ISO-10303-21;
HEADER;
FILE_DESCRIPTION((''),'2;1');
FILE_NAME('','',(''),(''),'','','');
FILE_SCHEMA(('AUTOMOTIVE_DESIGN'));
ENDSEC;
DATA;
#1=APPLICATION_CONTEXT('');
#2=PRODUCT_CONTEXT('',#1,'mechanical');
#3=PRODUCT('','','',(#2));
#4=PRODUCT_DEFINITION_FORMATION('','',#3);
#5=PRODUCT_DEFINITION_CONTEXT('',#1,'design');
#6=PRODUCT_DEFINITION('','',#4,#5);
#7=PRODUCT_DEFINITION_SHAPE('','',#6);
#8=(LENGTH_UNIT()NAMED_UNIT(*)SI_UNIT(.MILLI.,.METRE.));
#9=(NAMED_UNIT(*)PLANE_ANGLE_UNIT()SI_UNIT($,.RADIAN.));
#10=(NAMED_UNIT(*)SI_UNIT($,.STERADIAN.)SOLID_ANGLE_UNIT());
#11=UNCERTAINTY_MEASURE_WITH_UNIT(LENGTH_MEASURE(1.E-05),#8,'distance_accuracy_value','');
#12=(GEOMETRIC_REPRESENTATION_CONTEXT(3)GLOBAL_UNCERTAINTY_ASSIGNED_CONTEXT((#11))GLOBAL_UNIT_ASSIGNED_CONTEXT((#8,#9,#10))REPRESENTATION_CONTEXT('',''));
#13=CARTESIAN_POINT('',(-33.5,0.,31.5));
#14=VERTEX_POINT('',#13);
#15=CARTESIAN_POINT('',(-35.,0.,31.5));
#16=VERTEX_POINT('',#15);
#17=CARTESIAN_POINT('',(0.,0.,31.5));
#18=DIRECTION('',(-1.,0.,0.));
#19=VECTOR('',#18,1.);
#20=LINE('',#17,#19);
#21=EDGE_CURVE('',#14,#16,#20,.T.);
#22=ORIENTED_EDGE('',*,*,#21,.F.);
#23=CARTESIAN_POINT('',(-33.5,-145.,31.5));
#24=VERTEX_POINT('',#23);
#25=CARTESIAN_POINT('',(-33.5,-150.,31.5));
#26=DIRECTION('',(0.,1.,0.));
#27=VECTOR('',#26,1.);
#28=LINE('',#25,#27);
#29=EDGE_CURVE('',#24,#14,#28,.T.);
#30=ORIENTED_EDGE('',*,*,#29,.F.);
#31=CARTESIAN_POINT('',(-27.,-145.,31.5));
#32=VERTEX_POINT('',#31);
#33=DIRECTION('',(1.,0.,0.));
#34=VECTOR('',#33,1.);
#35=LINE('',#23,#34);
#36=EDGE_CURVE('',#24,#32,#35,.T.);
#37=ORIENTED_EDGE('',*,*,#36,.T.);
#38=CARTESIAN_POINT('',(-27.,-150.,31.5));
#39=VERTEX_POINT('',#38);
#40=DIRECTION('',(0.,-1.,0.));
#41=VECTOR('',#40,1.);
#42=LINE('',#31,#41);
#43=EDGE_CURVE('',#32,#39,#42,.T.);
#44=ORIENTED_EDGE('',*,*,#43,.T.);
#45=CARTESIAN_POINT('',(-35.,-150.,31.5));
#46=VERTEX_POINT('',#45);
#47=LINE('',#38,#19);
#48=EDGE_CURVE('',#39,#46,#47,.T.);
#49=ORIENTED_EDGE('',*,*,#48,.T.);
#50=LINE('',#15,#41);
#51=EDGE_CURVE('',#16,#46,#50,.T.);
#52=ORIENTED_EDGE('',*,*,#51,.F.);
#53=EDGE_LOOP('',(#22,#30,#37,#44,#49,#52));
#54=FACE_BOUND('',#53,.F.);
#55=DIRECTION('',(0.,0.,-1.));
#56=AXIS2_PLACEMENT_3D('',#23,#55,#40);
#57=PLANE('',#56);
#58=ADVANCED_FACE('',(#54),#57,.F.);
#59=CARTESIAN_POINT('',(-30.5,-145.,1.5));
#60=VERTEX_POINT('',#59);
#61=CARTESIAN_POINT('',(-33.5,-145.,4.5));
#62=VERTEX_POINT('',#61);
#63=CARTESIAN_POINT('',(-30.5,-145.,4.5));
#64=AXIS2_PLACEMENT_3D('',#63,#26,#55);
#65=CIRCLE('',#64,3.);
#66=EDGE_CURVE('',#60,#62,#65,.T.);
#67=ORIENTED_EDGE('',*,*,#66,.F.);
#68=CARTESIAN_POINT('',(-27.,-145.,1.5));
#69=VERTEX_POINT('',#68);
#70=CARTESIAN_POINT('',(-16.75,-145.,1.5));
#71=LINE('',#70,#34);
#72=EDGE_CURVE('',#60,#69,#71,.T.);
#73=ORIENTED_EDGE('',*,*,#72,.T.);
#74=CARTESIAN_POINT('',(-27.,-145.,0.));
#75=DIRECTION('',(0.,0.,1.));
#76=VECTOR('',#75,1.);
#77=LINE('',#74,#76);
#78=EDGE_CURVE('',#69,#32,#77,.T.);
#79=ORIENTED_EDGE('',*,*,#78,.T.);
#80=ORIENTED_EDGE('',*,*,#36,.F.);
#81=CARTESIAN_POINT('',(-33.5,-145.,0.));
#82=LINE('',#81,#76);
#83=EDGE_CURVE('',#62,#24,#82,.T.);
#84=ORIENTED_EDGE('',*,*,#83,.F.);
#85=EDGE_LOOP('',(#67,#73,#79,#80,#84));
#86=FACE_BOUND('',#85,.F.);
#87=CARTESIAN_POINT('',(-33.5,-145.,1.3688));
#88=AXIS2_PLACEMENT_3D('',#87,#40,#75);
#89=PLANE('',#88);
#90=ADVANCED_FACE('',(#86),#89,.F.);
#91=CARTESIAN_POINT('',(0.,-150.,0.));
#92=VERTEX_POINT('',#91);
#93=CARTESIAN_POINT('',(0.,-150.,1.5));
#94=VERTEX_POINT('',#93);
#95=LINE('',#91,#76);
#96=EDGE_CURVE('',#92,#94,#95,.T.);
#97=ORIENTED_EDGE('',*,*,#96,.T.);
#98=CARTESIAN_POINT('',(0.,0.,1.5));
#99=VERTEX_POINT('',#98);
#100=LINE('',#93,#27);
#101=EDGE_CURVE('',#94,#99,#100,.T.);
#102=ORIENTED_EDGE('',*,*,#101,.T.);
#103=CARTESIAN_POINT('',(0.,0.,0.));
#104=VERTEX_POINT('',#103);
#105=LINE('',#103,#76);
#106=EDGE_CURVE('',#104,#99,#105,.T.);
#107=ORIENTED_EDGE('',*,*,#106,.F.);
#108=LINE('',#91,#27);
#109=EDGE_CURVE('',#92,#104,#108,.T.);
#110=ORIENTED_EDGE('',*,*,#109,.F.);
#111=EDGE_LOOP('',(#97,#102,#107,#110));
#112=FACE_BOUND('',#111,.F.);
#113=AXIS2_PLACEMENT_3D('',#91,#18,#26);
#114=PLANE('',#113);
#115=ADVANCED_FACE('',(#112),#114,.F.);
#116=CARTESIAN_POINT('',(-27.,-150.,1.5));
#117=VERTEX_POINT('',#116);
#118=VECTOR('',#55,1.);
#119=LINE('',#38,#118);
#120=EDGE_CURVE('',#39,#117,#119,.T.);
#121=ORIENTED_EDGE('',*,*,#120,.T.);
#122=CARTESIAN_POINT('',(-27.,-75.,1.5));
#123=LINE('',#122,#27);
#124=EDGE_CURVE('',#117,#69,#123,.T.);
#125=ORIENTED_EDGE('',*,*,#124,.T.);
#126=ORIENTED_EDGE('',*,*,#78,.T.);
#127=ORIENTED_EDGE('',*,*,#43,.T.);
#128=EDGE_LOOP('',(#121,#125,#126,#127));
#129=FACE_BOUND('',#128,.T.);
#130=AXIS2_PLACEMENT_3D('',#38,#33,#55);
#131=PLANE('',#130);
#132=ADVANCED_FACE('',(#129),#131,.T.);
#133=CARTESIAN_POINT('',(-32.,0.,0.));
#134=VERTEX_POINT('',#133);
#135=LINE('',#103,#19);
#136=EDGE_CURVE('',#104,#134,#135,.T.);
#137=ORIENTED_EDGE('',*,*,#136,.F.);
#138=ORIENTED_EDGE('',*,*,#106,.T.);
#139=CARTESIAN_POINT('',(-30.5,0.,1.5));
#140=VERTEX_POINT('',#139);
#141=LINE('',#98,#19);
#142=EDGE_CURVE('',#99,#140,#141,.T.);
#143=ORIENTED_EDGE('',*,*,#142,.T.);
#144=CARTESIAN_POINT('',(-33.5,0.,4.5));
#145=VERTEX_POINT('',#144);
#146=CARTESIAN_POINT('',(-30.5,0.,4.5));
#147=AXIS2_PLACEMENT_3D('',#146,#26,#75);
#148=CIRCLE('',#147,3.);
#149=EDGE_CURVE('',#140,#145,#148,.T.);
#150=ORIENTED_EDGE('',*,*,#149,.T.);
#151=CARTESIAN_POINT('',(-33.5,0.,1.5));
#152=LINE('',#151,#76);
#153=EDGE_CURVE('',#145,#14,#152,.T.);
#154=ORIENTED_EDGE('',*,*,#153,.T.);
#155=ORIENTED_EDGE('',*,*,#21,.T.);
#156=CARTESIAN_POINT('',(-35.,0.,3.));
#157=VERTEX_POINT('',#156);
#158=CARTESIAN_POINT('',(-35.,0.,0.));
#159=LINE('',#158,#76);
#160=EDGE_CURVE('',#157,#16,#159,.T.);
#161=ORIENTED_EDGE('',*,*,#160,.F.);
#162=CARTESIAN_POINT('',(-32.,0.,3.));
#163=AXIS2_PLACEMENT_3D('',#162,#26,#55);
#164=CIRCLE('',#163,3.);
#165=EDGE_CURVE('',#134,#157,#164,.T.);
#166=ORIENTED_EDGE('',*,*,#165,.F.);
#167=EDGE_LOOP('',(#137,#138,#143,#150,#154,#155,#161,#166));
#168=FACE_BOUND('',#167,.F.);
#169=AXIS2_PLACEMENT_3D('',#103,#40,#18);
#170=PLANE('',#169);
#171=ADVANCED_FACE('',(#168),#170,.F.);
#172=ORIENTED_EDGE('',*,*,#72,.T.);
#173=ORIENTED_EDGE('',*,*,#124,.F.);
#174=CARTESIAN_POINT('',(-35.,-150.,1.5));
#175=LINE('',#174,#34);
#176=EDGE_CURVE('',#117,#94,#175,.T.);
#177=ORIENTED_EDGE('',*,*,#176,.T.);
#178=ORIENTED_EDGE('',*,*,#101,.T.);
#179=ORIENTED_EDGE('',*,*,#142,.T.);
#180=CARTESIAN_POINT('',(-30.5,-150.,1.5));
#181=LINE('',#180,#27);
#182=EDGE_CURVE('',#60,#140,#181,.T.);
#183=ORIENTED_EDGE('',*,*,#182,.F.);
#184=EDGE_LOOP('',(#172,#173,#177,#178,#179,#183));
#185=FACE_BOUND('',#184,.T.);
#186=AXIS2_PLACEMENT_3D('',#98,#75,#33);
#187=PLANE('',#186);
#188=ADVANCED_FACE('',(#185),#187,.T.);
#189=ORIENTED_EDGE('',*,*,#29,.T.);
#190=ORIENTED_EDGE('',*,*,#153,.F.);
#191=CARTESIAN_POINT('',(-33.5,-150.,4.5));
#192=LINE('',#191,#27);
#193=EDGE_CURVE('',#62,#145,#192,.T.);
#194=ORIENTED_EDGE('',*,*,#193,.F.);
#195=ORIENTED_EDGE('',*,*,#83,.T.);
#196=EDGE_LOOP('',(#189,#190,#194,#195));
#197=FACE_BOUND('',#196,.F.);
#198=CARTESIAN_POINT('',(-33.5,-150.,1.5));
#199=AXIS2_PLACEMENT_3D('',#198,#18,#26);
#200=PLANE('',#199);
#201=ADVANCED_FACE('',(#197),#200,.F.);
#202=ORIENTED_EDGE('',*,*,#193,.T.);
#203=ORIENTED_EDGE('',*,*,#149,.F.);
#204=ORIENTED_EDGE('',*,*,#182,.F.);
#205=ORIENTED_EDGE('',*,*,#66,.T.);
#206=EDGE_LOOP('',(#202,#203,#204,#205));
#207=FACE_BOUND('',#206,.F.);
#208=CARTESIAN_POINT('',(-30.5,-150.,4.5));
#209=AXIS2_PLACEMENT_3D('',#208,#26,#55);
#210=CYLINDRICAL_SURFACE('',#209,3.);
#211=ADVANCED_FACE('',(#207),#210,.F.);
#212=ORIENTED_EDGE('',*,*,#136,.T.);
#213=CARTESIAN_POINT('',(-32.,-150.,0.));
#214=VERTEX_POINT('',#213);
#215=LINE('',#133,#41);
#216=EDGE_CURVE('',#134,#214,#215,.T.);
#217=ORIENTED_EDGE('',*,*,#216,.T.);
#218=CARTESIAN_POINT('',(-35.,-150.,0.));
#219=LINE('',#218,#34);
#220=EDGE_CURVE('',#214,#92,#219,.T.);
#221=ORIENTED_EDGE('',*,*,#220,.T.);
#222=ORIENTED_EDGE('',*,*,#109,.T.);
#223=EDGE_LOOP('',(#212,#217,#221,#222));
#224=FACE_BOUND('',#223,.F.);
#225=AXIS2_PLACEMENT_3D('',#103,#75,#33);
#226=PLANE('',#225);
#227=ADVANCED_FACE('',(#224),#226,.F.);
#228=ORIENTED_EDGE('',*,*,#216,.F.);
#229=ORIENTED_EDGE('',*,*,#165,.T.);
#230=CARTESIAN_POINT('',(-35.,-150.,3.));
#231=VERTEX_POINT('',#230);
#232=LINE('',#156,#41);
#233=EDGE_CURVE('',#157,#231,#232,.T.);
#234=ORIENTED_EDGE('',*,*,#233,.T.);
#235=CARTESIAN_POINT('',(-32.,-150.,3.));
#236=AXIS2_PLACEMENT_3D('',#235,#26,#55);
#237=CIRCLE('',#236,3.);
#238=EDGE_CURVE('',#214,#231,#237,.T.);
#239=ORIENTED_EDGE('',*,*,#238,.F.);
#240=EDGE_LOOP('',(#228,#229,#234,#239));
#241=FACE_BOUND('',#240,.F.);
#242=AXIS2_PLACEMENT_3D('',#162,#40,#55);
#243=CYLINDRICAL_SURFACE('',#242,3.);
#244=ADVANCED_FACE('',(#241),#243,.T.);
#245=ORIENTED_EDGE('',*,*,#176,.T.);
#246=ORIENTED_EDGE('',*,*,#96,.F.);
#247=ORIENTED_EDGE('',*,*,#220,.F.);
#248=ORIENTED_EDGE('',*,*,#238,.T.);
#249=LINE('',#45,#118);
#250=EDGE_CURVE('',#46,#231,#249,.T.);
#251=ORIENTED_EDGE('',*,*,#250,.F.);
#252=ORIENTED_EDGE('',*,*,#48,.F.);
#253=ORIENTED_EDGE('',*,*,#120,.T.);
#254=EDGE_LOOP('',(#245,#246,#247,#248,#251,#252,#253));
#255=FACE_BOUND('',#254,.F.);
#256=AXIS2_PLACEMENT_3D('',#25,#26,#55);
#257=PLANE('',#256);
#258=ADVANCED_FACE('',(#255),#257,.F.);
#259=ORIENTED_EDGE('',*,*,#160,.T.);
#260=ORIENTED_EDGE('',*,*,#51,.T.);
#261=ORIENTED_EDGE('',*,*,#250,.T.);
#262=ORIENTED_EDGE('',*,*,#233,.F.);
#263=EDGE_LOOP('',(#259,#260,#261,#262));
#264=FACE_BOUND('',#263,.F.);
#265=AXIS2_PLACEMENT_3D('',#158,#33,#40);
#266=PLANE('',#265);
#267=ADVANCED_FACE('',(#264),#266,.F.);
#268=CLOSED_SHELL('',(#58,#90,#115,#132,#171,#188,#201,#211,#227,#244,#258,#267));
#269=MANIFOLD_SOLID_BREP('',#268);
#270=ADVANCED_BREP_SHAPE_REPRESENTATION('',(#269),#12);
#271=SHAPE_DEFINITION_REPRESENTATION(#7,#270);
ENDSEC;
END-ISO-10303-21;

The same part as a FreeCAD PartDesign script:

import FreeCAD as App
import Part
import Sketcher
from FreeCAD import Vector


def edges_at(feature, points):
    """Names of the edges that pass closest to the given points."""
    edges = feature.Shape.Edges
    near = lambda p: min(range(len(edges)), key=lambda i: edges[i].distToShape(Part.Vertex(*p))[0])
    return sorted({f"Edge{near(p) + 1}" for p in points})

doc = App.newDocument("Part")
body = doc.addObject("PartDesign::Body", "Body")

# Sketch on XY plane
sketch1 = body.newObject("Sketcher::SketchObject", "Sketch")
sketch1.AttachmentSupport = (doc.getObject("XY_Plane"), [""])
sketch1.MapMode = "FlatFace"
sketch1.addGeometry([
    Part.LineSegment(Vector(0, -150, 0), Vector(0, 0, 0)),
    Part.LineSegment(Vector(0, 0, 0), Vector(-35, 0, 0)),
    Part.LineSegment(Vector(-35, 0, 0), Vector(-35, -150, 0)),
    Part.LineSegment(Vector(-35, -150, 0), Vector(0, -150, 0)),
], False)
sketch1.addConstraint([
    Sketcher.Constraint("Coincident", 0, 2, 1, 1),
    Sketcher.Constraint("Coincident", 1, 2, 2, 1),
    Sketcher.Constraint("Coincident", 2, 2, 3, 1),
    Sketcher.Constraint("Coincident", 3, 2, 0, 1),
    Sketcher.Constraint("Vertical", 0),
    Sketcher.Constraint("Horizontal", 1),
    Sketcher.Constraint("Vertical", 2),
    Sketcher.Constraint("Horizontal", 3),
    Sketcher.Constraint("Coincident", 0, 2, -1, 1),
    Sketcher.Constraint("DistanceX", 1, 2, 1, 1, 35.0),
    Sketcher.Constraint("DistanceY", 0, 1, 0, 2, 150.0),
])
pad1 = body.newObject("PartDesign::Pad", "Pad")
pad1.Profile = sketch1
pad1.Length = 1.5

# Sketch on XY plane
sketch2 = body.newObject("Sketcher::SketchObject", "Sketch001")
sketch2.AttachmentSupport = (doc.getObject("XY_Plane"), [""])
sketch2.MapMode = "FlatFace"
sketch2.AttachmentOffset = App.Placement(Vector(0, 0, 1.5), App.Rotation())
sketch2.addGeometry([
    Part.LineSegment(Vector(-33.5, 0, 0), Vector(-35, 0, 0)),
    Part.LineSegment(Vector(-35, 0, 0), Vector(-35, -150, 0)),
    Part.LineSegment(Vector(-35, -150, 0), Vector(-33.5, -150, 0)),
    Part.LineSegment(Vector(-33.5, -150, 0), Vector(-33.5, 0, 0)),
], False)
sketch2.addConstraint([
    Sketcher.Constraint("Coincident", 0, 2, 1, 1),
    Sketcher.Constraint("Coincident", 1, 2, 2, 1),
    Sketcher.Constraint("Coincident", 2, 2, 3, 1),
    Sketcher.Constraint("Coincident", 3, 2, 0, 1),
    Sketcher.Constraint("Horizontal", 0),
    Sketcher.Constraint("Vertical", 1),
    Sketcher.Constraint("Horizontal", 2),
    Sketcher.Constraint("Vertical", 3),
    Sketcher.Constraint("PointOnObject", 0, 2, -1),
    Sketcher.Constraint("DistanceX", 0, 2, 0, 1, 1.5),
    Sketcher.Constraint("DistanceY", 1, 2, 1, 1, 150.0),
    Sketcher.Constraint("DistanceX", 0, 2, -1, 1, 35.0),
])
pad2 = body.newObject("PartDesign::Pad", "Pad001")
pad2.Profile = sketch2
pad2.Length = 30
doc.recompute()

fillet = body.newObject("PartDesign::Fillet", "Fillet")
fillet.Base = (pad2, edges_at(pad2, [(-35, -75, 0), (-33.5, -75, 1.5)]))
fillet.Radius = 3

# Sketch on YZ plane
sketch3 = body.newObject("Sketcher::SketchObject", "Sketch002")
sketch3.AttachmentSupport = (doc.getObject("YZ_Plane"), [""])
sketch3.MapMode = "FlatFace"
sketch3.AttachmentOffset = App.Placement(Vector(0, 0, -33.5), App.Rotation())
sketch3.addGeometry([
    Part.LineSegment(Vector(-150, 31.5, 0), Vector(-150, 1.3688, 0)),
    Part.LineSegment(Vector(-150, 1.3688, 0), Vector(-145, 1.3688, 0)),
    Part.LineSegment(Vector(-145, 1.3688, 0), Vector(-145, 31.5, 0)),
    Part.LineSegment(Vector(-145, 31.5, 0), Vector(-150, 31.5, 0)),
], False)
sketch3.addConstraint([
    Sketcher.Constraint("Coincident", 0, 2, 1, 1),
    Sketcher.Constraint("Coincident", 1, 2, 2, 1),
    Sketcher.Constraint("Coincident", 2, 2, 3, 1),
    Sketcher.Constraint("Coincident", 3, 2, 0, 1),
    Sketcher.Constraint("Vertical", 0),
    Sketcher.Constraint("Horizontal", 1),
    Sketcher.Constraint("Vertical", 2),
    Sketcher.Constraint("Horizontal", 3),
    Sketcher.Constraint("DistanceX", 1, 1, 1, 2, 5.0),
    Sketcher.Constraint("DistanceX", 0, 2, -1, 1, 150.0),
    Sketcher.Constraint("DistanceY", -1, 1, 2, 2, 31.5),
    Sketcher.Constraint("DistanceY", 0, 2, 0, 1, 30.1312),
])
pad3 = body.newObject("PartDesign::Pad", "Pad002")
pad3.Profile = sketch3
pad3.Length = 6.5

doc.recompute()
